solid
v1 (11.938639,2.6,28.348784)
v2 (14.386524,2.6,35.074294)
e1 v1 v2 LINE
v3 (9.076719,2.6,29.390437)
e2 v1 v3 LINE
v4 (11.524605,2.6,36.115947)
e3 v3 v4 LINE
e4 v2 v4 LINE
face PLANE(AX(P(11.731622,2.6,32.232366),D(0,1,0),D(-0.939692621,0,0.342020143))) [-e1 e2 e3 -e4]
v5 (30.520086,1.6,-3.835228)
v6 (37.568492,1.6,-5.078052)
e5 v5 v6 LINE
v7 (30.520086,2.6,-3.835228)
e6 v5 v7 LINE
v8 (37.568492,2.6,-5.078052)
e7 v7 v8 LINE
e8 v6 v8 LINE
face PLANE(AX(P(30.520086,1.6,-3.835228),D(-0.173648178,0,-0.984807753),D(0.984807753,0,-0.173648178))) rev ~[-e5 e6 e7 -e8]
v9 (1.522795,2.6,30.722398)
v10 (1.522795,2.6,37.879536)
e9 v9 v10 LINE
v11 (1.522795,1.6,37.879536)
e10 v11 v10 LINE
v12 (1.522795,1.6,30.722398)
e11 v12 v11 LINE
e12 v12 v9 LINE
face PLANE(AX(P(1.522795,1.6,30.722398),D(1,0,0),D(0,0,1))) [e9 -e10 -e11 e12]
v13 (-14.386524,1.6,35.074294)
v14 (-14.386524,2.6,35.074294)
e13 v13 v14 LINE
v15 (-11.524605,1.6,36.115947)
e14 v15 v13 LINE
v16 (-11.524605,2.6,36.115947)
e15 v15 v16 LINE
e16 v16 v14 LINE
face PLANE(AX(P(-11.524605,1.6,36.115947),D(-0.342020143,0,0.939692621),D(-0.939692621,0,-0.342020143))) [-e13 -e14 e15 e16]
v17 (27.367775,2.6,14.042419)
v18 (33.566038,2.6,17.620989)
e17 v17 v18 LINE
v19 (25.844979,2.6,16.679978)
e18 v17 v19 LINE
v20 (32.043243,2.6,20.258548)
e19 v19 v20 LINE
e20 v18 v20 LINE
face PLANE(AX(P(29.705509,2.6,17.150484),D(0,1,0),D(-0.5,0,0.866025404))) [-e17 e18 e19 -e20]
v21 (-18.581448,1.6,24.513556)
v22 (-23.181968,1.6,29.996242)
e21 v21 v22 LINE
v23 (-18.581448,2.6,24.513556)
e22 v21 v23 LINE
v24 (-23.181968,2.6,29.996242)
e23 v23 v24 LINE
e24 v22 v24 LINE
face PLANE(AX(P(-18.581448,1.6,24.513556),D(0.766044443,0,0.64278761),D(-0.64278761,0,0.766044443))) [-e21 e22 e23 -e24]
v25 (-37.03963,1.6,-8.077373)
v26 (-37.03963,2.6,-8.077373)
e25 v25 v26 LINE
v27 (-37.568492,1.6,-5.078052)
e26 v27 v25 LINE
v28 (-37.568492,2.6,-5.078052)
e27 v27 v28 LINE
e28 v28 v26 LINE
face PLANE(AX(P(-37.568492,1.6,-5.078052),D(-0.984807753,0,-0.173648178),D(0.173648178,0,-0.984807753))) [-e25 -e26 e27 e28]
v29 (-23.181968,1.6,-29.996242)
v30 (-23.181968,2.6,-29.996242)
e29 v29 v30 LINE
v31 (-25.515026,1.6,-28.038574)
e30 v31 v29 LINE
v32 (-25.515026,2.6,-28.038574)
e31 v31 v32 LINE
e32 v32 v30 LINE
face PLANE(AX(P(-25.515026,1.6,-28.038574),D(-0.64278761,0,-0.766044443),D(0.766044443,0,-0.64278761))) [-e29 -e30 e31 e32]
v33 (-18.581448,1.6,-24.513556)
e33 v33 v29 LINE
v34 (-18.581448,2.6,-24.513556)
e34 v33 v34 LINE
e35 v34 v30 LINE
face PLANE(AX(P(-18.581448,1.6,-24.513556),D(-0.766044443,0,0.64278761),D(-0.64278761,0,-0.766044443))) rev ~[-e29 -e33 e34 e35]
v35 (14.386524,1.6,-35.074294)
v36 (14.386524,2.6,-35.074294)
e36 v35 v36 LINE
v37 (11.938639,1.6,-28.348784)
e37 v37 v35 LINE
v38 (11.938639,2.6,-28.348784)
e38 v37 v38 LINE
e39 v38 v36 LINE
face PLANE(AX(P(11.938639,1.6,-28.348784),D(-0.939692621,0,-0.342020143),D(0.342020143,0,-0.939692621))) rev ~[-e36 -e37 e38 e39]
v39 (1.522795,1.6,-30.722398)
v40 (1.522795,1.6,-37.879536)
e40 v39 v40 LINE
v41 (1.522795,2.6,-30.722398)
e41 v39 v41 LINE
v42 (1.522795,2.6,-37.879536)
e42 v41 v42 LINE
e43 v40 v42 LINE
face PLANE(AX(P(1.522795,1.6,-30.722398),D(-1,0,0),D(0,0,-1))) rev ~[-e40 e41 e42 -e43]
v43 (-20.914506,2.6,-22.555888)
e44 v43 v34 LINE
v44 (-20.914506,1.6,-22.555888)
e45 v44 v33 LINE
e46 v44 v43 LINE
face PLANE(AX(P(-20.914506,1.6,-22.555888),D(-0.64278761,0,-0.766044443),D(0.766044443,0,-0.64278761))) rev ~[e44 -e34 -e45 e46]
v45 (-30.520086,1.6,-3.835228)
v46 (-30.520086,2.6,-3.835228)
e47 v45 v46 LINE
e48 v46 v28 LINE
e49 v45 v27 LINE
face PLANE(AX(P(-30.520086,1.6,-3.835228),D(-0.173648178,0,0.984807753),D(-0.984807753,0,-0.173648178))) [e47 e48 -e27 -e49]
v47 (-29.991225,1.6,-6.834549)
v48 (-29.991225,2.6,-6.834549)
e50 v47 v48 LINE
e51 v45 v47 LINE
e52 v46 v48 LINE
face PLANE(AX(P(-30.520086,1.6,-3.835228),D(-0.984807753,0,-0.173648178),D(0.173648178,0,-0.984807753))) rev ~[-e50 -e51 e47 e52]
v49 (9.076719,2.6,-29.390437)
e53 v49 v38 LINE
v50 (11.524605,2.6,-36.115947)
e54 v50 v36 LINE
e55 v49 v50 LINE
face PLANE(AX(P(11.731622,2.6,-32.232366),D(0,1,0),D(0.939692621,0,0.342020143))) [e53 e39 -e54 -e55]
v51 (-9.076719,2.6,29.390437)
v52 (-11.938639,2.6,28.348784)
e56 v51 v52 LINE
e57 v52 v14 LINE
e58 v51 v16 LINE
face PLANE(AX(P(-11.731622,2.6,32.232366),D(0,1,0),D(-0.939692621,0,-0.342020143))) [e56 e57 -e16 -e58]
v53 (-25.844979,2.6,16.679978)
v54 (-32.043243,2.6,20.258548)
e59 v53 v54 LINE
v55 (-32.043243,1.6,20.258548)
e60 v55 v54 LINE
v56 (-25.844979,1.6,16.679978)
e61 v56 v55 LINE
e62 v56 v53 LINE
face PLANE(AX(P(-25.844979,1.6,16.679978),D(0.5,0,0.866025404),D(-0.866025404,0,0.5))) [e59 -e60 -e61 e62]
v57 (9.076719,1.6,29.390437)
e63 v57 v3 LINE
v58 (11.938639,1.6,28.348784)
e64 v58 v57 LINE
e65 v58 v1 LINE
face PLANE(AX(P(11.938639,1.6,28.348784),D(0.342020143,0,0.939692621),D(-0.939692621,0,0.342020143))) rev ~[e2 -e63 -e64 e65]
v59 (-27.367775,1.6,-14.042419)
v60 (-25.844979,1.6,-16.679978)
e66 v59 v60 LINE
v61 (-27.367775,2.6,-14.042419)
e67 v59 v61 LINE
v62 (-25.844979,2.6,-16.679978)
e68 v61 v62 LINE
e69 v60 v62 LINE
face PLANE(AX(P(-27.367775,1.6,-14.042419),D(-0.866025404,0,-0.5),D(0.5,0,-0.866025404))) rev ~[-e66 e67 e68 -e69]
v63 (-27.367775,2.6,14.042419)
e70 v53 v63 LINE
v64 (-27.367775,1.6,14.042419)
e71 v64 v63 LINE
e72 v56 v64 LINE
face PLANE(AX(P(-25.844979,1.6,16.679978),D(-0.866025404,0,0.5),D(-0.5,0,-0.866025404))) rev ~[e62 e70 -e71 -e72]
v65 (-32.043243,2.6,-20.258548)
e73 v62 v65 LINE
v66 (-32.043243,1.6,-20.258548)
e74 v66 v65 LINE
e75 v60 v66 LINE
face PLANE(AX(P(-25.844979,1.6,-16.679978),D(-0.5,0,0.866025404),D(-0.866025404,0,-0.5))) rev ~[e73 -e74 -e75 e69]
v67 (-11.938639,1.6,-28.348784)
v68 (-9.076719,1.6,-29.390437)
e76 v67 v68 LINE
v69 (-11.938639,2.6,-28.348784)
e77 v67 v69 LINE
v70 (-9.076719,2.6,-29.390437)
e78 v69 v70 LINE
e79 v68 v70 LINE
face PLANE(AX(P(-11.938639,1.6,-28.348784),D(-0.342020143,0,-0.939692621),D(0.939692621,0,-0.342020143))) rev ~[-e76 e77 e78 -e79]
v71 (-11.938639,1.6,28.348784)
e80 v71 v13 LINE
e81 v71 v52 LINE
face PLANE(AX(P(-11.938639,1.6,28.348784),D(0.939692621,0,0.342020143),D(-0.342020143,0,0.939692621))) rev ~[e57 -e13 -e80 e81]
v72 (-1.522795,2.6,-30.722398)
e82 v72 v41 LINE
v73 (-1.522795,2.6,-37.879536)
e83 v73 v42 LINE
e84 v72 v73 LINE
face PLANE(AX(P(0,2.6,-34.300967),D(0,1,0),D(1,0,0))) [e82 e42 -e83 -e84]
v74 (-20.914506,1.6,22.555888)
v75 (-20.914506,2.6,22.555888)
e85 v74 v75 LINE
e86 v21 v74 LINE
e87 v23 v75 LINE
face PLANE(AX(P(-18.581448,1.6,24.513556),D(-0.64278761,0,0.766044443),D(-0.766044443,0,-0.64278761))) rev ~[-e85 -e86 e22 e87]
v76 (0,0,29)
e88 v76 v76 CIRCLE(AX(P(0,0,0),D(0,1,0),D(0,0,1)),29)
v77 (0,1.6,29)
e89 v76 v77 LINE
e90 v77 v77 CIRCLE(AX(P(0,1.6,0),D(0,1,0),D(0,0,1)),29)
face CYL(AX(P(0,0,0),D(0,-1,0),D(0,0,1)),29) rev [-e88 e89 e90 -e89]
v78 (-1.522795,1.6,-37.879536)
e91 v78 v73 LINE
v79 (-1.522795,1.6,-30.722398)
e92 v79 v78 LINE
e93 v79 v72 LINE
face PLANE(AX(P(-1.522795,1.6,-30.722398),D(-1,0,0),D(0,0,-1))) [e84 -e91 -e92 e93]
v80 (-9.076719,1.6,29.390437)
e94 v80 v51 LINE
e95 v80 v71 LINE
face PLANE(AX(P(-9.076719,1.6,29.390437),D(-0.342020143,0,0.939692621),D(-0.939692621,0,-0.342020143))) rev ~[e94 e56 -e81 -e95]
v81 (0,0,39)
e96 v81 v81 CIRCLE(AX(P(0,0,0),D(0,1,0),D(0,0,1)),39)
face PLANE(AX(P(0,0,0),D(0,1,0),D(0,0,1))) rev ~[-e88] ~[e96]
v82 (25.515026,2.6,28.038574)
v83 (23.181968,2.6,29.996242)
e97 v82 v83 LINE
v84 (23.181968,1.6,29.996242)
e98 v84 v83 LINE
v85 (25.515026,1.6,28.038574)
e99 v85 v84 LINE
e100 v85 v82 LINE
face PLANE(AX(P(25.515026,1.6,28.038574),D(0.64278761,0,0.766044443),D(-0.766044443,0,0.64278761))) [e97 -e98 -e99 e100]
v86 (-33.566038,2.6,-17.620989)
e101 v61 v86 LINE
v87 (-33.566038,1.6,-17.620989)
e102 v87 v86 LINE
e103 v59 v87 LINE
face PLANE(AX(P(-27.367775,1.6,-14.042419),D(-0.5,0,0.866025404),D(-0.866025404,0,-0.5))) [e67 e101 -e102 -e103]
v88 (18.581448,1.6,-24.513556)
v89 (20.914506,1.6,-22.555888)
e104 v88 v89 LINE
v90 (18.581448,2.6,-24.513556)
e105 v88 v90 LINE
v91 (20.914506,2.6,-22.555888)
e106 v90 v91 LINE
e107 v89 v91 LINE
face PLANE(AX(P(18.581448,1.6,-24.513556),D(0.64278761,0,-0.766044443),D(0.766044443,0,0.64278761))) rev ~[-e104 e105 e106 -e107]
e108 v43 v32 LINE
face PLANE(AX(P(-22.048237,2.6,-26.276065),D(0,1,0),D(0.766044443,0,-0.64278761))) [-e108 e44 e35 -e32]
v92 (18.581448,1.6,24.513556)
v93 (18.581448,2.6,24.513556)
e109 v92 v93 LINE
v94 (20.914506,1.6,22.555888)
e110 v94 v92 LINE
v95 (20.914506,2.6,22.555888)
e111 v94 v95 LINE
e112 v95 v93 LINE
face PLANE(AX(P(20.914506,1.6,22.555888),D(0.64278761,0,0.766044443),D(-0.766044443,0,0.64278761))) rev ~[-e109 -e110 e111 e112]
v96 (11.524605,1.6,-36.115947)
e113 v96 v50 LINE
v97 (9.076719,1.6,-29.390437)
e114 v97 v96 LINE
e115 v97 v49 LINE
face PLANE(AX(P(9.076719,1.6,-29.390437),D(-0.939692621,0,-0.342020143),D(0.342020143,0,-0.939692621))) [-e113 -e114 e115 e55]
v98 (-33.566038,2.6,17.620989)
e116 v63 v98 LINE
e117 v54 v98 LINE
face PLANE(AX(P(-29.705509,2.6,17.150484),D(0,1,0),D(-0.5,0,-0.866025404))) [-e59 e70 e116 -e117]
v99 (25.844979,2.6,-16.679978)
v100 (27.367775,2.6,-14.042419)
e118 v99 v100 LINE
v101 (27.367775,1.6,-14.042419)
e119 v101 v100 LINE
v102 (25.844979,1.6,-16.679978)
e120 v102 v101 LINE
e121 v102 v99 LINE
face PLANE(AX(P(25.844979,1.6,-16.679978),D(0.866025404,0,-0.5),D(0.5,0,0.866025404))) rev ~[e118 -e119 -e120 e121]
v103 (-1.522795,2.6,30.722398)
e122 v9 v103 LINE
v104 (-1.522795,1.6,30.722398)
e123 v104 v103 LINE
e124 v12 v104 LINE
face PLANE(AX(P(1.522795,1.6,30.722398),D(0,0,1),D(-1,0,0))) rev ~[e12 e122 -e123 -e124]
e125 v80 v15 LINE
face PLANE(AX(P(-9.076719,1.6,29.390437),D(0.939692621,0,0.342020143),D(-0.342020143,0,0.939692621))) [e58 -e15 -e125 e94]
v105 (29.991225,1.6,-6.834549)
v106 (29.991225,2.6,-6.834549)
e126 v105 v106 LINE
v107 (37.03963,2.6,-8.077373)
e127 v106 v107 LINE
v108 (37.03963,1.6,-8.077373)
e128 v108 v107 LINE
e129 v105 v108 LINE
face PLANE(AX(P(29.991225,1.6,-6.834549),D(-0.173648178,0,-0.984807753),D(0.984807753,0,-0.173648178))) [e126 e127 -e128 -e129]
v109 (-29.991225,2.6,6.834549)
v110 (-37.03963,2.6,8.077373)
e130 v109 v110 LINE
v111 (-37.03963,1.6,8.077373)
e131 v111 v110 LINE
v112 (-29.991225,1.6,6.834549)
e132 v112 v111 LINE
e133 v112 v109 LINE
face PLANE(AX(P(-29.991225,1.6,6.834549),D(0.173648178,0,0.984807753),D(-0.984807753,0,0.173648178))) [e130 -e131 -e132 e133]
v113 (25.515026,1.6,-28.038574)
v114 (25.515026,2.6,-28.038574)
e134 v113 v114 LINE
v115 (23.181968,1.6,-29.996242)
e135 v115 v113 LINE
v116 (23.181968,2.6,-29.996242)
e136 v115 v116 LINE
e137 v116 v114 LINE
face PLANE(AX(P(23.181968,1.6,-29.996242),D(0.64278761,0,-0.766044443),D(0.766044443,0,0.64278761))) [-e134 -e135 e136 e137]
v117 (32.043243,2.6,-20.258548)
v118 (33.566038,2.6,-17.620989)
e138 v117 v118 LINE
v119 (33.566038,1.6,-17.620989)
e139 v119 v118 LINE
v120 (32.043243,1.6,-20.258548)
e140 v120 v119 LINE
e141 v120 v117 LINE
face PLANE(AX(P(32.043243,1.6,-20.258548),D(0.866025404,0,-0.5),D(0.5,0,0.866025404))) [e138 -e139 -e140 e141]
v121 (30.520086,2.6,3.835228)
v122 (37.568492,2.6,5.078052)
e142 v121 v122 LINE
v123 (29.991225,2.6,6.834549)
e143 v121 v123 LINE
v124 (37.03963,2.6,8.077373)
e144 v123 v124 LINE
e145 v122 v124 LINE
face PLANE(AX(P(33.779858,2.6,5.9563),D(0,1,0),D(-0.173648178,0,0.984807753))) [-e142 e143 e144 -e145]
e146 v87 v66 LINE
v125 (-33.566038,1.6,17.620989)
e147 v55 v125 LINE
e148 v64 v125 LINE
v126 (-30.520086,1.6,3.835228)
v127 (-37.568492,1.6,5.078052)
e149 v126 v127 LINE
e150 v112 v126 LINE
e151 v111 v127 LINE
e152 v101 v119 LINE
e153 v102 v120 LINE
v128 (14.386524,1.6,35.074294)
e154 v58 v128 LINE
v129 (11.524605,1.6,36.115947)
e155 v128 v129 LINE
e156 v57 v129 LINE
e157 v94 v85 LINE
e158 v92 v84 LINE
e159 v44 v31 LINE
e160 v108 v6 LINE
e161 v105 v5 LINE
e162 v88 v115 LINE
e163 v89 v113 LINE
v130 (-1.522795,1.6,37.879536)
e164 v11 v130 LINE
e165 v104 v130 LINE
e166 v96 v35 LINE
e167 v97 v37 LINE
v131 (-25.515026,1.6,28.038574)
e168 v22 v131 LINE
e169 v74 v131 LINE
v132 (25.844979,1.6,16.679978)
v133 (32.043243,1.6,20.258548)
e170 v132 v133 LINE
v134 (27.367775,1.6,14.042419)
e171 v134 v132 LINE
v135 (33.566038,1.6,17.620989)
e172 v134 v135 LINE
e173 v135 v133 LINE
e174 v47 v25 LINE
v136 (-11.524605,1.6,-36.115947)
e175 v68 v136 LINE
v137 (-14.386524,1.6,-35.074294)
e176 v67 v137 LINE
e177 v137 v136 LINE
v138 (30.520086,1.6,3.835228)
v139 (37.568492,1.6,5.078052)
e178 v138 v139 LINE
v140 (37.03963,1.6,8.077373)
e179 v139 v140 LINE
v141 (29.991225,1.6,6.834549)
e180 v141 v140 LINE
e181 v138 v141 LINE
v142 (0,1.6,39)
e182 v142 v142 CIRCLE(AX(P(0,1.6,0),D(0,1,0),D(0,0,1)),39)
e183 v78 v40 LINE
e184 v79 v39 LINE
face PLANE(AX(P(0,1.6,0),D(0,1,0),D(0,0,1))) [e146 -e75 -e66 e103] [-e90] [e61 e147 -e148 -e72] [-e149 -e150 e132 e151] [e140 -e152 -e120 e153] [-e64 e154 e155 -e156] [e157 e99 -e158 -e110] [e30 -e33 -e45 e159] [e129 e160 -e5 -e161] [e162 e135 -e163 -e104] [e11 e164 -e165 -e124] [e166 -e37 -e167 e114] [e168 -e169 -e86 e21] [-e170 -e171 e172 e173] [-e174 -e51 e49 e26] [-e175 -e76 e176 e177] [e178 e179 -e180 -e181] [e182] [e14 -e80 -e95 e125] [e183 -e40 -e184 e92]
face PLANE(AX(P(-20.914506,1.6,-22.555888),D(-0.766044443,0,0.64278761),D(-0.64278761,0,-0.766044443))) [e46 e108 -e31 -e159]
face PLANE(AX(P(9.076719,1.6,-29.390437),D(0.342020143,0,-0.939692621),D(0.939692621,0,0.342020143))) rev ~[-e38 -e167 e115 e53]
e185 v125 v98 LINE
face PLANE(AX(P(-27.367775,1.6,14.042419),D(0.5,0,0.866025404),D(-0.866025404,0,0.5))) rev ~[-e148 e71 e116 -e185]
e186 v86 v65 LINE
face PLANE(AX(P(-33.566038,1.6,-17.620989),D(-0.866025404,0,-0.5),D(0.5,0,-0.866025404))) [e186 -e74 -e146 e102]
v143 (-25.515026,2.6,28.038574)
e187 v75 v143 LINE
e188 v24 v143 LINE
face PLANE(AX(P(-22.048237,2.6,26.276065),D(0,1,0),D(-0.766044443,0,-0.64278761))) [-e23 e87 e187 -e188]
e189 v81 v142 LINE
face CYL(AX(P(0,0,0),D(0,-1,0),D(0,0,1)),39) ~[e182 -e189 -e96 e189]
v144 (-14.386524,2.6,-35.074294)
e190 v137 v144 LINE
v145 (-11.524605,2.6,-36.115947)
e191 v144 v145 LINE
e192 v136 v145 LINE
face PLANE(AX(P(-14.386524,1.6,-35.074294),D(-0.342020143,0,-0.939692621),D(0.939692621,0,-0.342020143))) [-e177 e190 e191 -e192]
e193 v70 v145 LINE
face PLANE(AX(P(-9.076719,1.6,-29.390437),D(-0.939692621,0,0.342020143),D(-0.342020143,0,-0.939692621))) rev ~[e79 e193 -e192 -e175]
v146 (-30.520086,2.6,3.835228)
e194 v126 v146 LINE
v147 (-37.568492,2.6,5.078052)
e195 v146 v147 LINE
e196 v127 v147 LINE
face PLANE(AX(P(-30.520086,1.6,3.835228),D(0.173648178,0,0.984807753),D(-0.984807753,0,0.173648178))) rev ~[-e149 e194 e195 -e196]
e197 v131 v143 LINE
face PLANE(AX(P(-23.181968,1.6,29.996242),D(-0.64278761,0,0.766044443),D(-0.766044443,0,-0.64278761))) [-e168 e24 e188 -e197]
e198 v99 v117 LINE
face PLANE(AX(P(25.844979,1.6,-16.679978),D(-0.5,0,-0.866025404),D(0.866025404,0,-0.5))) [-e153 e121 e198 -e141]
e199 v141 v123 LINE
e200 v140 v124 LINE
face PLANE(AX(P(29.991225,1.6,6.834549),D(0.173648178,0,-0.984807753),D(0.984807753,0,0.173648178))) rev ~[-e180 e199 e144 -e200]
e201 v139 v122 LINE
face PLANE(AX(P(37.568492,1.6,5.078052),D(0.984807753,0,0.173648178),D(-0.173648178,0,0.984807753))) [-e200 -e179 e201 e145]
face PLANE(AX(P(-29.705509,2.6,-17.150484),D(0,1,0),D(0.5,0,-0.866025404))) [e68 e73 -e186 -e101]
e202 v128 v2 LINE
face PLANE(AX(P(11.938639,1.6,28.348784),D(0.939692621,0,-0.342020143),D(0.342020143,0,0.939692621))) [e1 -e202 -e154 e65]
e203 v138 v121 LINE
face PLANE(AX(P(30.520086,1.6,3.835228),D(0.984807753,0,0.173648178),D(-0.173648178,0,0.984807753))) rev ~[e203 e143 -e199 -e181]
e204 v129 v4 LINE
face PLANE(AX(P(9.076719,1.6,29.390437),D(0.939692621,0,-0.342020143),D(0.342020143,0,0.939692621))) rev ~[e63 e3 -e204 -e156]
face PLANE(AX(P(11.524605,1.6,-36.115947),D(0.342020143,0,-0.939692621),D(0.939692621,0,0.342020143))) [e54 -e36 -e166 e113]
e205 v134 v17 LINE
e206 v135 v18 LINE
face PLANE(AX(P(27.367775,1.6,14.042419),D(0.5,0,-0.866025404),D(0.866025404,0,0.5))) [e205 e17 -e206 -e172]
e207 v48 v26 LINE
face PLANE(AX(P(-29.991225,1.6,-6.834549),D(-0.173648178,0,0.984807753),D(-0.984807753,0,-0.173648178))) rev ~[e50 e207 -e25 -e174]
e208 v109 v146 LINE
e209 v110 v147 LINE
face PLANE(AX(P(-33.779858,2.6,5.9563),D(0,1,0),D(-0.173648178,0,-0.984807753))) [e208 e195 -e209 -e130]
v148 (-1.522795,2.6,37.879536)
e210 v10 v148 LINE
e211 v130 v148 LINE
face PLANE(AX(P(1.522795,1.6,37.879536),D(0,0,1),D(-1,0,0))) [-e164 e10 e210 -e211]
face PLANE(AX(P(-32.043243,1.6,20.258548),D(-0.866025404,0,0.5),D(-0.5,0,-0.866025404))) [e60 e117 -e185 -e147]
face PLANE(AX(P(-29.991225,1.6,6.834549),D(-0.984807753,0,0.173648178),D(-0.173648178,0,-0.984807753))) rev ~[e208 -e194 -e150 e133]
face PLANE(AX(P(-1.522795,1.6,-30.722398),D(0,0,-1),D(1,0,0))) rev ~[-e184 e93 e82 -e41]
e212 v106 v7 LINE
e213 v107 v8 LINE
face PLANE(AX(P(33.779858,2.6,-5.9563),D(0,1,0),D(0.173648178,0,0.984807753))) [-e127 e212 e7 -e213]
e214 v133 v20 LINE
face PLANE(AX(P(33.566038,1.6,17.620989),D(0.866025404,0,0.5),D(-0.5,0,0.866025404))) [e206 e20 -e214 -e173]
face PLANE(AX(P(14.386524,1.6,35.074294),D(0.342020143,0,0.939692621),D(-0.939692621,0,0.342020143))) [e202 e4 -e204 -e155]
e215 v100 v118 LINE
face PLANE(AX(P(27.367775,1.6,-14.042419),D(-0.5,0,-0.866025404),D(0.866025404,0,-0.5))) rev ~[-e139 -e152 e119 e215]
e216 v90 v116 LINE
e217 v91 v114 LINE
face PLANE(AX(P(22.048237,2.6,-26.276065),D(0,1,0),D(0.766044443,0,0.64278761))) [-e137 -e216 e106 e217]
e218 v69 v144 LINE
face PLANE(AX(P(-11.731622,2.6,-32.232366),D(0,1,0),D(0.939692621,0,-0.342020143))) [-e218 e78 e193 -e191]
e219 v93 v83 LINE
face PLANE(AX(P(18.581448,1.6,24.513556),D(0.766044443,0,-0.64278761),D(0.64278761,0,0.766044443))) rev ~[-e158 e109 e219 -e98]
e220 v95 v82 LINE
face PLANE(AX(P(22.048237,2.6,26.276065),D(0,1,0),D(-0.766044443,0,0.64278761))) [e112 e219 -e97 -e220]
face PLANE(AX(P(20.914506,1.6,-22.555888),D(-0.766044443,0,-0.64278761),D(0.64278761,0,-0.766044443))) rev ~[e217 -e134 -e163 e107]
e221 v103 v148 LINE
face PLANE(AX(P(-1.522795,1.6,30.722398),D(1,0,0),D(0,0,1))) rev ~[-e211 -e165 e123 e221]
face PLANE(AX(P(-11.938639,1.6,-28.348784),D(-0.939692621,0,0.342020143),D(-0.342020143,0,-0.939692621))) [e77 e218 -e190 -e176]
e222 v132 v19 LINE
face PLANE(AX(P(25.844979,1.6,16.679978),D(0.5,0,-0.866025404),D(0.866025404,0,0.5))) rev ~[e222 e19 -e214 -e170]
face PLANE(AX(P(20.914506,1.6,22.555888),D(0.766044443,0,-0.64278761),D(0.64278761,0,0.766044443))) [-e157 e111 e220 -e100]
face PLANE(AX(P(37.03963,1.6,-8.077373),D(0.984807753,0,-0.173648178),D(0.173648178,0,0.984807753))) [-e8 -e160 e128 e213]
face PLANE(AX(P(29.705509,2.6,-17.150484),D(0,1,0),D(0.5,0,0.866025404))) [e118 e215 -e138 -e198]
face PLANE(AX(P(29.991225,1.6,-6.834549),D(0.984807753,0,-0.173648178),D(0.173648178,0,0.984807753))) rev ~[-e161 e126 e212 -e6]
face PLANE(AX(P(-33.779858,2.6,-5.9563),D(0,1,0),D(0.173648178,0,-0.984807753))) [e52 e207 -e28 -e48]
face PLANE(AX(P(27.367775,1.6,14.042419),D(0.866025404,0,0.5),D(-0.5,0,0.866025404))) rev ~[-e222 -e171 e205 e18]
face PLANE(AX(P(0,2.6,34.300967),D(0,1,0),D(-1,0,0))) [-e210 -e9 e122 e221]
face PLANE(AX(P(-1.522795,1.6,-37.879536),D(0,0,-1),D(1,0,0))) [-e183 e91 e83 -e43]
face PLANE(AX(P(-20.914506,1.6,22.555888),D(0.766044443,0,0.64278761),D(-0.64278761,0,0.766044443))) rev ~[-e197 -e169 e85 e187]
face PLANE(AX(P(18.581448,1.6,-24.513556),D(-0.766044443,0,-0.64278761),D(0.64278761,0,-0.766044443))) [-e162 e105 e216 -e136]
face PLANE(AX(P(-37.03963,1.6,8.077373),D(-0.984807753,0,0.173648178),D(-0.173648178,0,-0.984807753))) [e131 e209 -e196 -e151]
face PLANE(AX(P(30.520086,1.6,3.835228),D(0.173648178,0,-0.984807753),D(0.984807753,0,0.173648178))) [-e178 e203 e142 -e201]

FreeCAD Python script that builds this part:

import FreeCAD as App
import Part
import Sketcher
from FreeCAD import Vector

doc = App.newDocument("Part")
body = doc.addObject("PartDesign::Body", "Body")

sketch1 = body.newObject("Sketcher::SketchObject", "Sketch")
sketch1.AttachmentSupport = (doc.getObject("XZ_Plane"), [""])
sketch1.MapMode = "FlatFace"
sketch1.addGeometry([
    Part.Circle(Vector(0, 0, 0), Vector(0, 0, 1), 39),
    Part.Circle(Vector(0, 0, 0), Vector(0, 0, 1), 29),
], False)
sketch1.addConstraint([
    Sketcher.Constraint("Coincident", 0, 3, -1, 1),
    Sketcher.Constraint("Coincident", 1, 3, -1, 1),
    Sketcher.Constraint("Diameter", 0, 78.0),
    Sketcher.Constraint("Diameter", 1, 58.0),
])
pad1 = body.newObject("PartDesign::Pad", "Pad")
pad1.Profile = sketch1
pad1.Length = 1.6
pad1.Reversed = True

sketch2 = body.newObject("Sketcher::SketchObject", "Sketch001")
sketch2.AttachmentSupport = (doc.getObject("XZ_Plane"), [""])
sketch2.MapMode = "FlatFace"
sketch2.AttachmentOffset = App.Placement(Vector(0, 0, -1.6), App.Rotation())
sketch2.addGeometry([
    Part.LineSegment(Vector(-1.522795, -37.879536, 0), Vector(-1.522795, -30.722398, 0)),
    Part.LineSegment(Vector(-1.522795, -30.722398, 0), Vector(1.522795, -30.722398, 0)),
    Part.LineSegment(Vector(1.522795, -30.722398, 0), Vector(1.522795, -37.879536, 0)),
    Part.LineSegment(Vector(1.522795, -37.879536, 0), Vector(-1.522795, -37.879536, 0)),
], False)
sketch2.addConstraint([
    Sketcher.Constraint("Coincident", 0, 2, 1, 1),
    Sketcher.Constraint("Coincident", 1, 2, 2, 1),
    Sketcher.Constraint("Coincident", 2, 2, 3, 1),
    Sketcher.Constraint("Coincident", 3, 2, 0, 1),
    Sketcher.Constraint("Vertical", 0),
    Sketcher.Constraint("Horizontal", 1),
    Sketcher.Constraint("Vertical", 2),
    Sketcher.Constraint("Horizontal", 3),
    Sketcher.Constraint("DistanceX", 1, 1, 1, 2, 3.045591),
    Sketcher.Constraint("DistanceY", 0, 1, 0, 2, 7.157139),
    Sketcher.Constraint("DistanceX", 0, 2, -1, 1, 1.522795),
    Sketcher.Constraint("DistanceY", 0, 2, -1, 1, 30.722398),
])
pad2 = body.newObject("PartDesign::Pad", "Pad001")
pad2.Profile = sketch2
pad2.Length = 1
pad2.Reversed = True
doc.recompute()

polarpattern = body.newObject("PartDesign::PolarPattern", "PolarPattern")
polarpattern.Originals = [pad2]
polarpattern.Axis = (doc.getObject("Y_Axis"), [""])
polarpattern.Angle = 360
polarpattern.Occurrences = 18
body.Tip = polarpattern

doc.recompute()
